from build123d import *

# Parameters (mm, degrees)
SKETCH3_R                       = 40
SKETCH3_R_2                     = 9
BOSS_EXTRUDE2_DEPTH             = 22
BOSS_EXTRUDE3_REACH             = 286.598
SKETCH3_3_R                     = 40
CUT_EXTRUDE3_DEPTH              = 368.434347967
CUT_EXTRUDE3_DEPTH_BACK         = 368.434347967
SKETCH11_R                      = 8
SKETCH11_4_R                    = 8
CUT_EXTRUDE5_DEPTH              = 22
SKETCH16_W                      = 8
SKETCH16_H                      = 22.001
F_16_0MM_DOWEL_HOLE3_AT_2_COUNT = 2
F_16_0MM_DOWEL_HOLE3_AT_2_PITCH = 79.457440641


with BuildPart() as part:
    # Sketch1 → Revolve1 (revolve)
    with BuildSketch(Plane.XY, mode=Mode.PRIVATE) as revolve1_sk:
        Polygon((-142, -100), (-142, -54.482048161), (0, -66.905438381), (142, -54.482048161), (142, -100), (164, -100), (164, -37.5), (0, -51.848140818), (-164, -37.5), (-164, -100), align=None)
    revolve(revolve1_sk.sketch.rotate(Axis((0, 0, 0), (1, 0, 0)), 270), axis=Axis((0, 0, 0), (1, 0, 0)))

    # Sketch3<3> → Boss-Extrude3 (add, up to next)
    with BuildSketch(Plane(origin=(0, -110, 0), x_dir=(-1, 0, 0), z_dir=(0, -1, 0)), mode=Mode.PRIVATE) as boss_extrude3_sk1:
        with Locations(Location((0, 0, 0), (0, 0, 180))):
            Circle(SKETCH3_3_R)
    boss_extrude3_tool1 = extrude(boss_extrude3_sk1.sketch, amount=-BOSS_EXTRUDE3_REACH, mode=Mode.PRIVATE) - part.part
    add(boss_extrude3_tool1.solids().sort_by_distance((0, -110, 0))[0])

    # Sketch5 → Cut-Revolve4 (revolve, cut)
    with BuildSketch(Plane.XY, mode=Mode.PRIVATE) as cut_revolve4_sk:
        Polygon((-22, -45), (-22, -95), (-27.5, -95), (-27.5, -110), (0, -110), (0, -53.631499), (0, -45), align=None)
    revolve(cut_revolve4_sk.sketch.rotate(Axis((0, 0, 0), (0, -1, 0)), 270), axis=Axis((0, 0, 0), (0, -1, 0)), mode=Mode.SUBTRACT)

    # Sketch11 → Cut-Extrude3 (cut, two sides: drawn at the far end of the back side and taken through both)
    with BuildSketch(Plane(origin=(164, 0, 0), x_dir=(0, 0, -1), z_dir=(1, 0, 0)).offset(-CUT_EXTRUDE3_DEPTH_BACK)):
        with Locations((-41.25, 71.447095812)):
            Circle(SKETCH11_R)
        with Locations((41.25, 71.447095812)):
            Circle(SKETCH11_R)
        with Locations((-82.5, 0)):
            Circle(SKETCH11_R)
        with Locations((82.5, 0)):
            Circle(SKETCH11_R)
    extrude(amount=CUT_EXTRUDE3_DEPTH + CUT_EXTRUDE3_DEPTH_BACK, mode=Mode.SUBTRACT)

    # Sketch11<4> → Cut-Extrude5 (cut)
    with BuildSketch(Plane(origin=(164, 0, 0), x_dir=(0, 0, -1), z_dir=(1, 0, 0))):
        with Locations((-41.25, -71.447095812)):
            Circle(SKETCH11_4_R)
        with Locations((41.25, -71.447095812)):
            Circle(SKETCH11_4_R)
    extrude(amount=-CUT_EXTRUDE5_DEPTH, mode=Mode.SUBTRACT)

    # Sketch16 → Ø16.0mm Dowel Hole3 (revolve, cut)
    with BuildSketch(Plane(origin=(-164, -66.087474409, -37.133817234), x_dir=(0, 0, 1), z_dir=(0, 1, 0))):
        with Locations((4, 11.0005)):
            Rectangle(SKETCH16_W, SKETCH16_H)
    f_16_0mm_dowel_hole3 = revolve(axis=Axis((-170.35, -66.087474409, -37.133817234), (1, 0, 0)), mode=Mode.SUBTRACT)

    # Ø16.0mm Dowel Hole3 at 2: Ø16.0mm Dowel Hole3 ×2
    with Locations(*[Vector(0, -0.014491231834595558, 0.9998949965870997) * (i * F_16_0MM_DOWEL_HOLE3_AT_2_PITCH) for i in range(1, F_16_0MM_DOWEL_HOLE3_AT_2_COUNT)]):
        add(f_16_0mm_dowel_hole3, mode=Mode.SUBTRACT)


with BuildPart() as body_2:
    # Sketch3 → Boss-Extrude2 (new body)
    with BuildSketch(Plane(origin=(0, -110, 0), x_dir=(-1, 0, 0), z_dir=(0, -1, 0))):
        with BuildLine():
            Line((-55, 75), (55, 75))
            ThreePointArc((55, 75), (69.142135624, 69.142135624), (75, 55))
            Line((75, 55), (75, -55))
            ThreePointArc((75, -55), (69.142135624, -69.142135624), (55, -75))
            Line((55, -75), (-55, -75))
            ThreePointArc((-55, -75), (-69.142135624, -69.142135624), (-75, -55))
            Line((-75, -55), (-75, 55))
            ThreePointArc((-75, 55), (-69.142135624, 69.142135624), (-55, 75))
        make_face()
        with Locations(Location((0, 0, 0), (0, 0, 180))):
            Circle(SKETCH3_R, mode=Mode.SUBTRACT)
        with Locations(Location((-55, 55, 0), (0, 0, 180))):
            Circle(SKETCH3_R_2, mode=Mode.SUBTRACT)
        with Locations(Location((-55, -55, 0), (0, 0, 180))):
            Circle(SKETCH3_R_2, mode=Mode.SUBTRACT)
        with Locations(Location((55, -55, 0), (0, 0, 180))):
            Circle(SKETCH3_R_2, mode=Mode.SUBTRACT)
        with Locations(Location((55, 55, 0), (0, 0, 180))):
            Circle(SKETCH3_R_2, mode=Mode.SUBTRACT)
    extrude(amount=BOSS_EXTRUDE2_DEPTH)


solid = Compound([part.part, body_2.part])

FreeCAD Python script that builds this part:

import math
import FreeCAD as App
import Part
import Sketcher
from FreeCAD import Vector
Q = App.Units.Quantity


def add_polygon(sketch, points):
    """Adds a closed chain of lines whose ends are joined by coincident constraints."""
    first, n = sketch.GeometryCount, len(points)
    for a, b in zip(points, points[1:] + points[:1]):
        sketch.addGeometry(Part.LineSegment(App.Vector(*a, 0), App.Vector(*b, 0)), False)
    for i in range(n):
        sketch.addConstraint(Sketcher.Constraint("Coincident", first + i, 2, first + (i + 1) % n, 1))

doc = App.newDocument("Part")
body = doc.addObject("PartDesign::Body", "Body")

sketch1 = body.newObject("Sketcher::SketchObject", "Sketch")
sketch1.AttachmentSupport = (doc.getObject("XY_Plane"), [""])
sketch1.MapMode = "FlatFace"
add_polygon(sketch1, [(-142, -100), (-142, -54), (0, -67), (142, -54), (142, -100), (164, -100), (164, -38), (0, -52), (-164, -38), (-164, -100)])
sketch1.addConstraint(Sketcher.Constraint("Vertical", 0))
sketch1.addConstraint(Sketcher.Constraint("Vertical", 3))
sketch1.addConstraint(Sketcher.Constraint("Horizontal", 4))
sketch1.addConstraint(Sketcher.Constraint("Vertical", 5))
sketch1.addConstraint(Sketcher.Constraint("Vertical", 8))
sketch1.addConstraint(Sketcher.Constraint("Horizontal", 9))
sketch1.addConstraint(Sketcher.Constraint("Symmetric", 0, 2, 2, 2, -2))
sketch1.addConstraint(Sketcher.Constraint("Symmetric", 5, 2, 7, 2, -2))
sketch1.addConstraint(Sketcher.Constraint("PointOnObject", 1, 2, -2))
sketch1.addConstraint(Sketcher.Constraint("PointOnObject", 6, 2, -2))
sketch1.addConstraint(Sketcher.Constraint("Parallel", 2, 6))
sketch1.addConstraint(Sketcher.Constraint("Horizontal", 4, 2, 8, 2))
sketch1.addConstraint(Sketcher.Constraint("DistanceX", 4, 1, 4, 2, Q("22 mm")))
sketch1.addConstraint(Sketcher.Constraint("Angle", 1, Q("-5 deg")))
sketch1.addConstraint(Sketcher.Constraint("DistanceY", 5, 1, 5, 2, Q("62.5 mm")))
sketch1.addConstraint(Sketcher.Constraint("DistanceX", 0, 2, -1, 1, Q("142 mm")))
sketch1.addConstraint(Sketcher.Constraint("DistanceY", 3, 2, -1, 1, Q("100 mm")))
sketch1.addConstraint(Sketcher.Constraint("DistanceY", 0, 1, 0, 2, Q("45.517952 mm")))
revolution = body.newObject("PartDesign::Revolution", "Revolution")
revolution.Profile = sketch1
revolution.ReferenceAxis = (sketch1, ["H_Axis"])
revolution.Angle = 360

sketch2 = body.newObject("Sketcher::SketchObject", "Sketch001")
sketch2.AttachmentSupport = (doc.getObject("XZ_Plane"), [""])
sketch2.MapMode = "FlatFace"
sketch2.AttachmentOffset = App.Placement(Vector(0, 0, 110), App.Rotation())
sketch2.addGeometry(Part.Circle(Vector(0, 0, 0), Vector(0, 0, 1), 40), False)
sketch2.addConstraint(Sketcher.Constraint("Coincident", 0, 3, -1, 1))
sketch2.addConstraint(Sketcher.Constraint("Diameter", 0, Q("80 mm")))
pad1 = body.newObject("PartDesign::Pad", "Pad")
pad1.Profile = sketch2
pad1.Type = "UpToFirst"
pad1.Reversed = True

sketch3 = body.newObject("Sketcher::SketchObject", "Sketch002")
sketch3.AttachmentSupport = (doc.getObject("XY_Plane"), [""])
sketch3.MapMode = "FlatFace"
add_polygon(sketch3, [(-22, -45), (-22, -95), (-28, -95), (-28, -110), (0, -110), (0, -45)])
sketch3.addConstraint(Sketcher.Constraint("Vertical", 0))
sketch3.addConstraint(Sketcher.Constraint("Horizontal", 1))
sketch3.addConstraint(Sketcher.Constraint("Vertical", 2))
sketch3.addConstraint(Sketcher.Constraint("Horizontal", 3))
sketch3.addConstraint(Sketcher.Constraint("Vertical", 4))
sketch3.addConstraint(Sketcher.Constraint("Horizontal", 5))
sketch3.addConstraint(Sketcher.Constraint("PointOnObject", 3, 2, -2))
sketch3.addConstraint(Sketcher.Constraint("DistanceX", 5, 2, 5, 1, Q("22 mm")))
sketch3.addConstraint(Sketcher.Constraint("DistanceY", 0, 2, 0, 1, Q("50 mm")))
sketch3.addConstraint(Sketcher.Constraint("DistanceY", 2, 2, 2, 1, Q("15 mm")))
sketch3.addConstraint(Sketcher.Constraint("DistanceX", 1, 2, 1, 1, Q("5.5 mm")))
sketch3.addConstraint(Sketcher.Constraint("DistanceY", 0, 2, -1, 1, Q("95 mm")))
groove = body.newObject("PartDesign::Groove", "Groove")
groove.Profile = sketch3
groove.ReferenceAxis = (sketch3, ["V_Axis"])
groove.Angle = 360

sketch4 = body.newObject("Sketcher::SketchObject", "Sketch003")
sketch4.AttachmentSupport = (doc.getObject("YZ_Plane"), [""])
sketch4.MapMode = "FlatFace"
sketch4.AttachmentOffset = App.Placement(Vector(0, 0, 164), App.Rotation())
sketch4.addGeometry(Part.Circle(Vector(71, 41, 0), Vector(0, 0, 1), 8), False)
sketch4.addGeometry(Part.Circle(Vector(71, -41, 0), Vector(0, 0, 1), 8), False)
sketch4.addGeometry(Part.Circle(Vector(0, 82, 0), Vector(0, 0, 1), 8), False)
sketch4.addGeometry(Part.Circle(Vector(0, -82, 0), Vector(0, 0, 1), 8), False)
sketch4.addConstraint(Sketcher.Constraint("Equal", 0, 1))
sketch4.addConstraint(Sketcher.Constraint("Equal", 1, 2))
sketch4.addConstraint(Sketcher.Constraint("Equal", 2, 3))
sketch4.addConstraint(Sketcher.Constraint("Symmetric", 2, 3, 3, 3, -1, 1))
sketch4.addConstraint(Sketcher.Constraint("Symmetric", 0, 3, 1, 3, -1))
sketch4.addConstraint(Sketcher.Constraint("PointOnObject", 2, 3, -2))
sketch4.addConstraint(Sketcher.Constraint("Diameter", 0, Q("16 mm")))
sketch4.addConstraint(Sketcher.Constraint("DistanceY", 3, 3, 2, 3, Q("165 mm")))
sketch4.addConstraint(Sketcher.Constraint("DistanceY", 1, 3, 0, 3, Q("82.5 mm")))
sketch4.addConstraint(Sketcher.Constraint("DistanceX", -1, 1, 0, 3, Q("71.447096 mm")))
pocket1 = body.newObject("PartDesign::Pocket", "Pocket")
pocket1.Profile = sketch4
pocket1.Type = "ThroughAll"
pocket1.Midplane = True

sketch5 = body.newObject("Sketcher::SketchObject", "Sketch004")
sketch5.AttachmentSupport = (doc.getObject("YZ_Plane"), [""])
sketch5.MapMode = "FlatFace"
sketch5.AttachmentOffset = App.Placement(Vector(0, 0, 164), App.Rotation())
sketch5.addGeometry(Part.Circle(Vector(-71, 41, 0), Vector(0, 0, 1), 8), False)
sketch5.addGeometry(Part.Circle(Vector(-71, -41, 0), Vector(0, 0, 1), 8), False)
sketch5.addConstraint(Sketcher.Constraint("Equal", 0, 1))
sketch5.addConstraint(Sketcher.Constraint("Symmetric", 0, 3, 1, 3, -1))
sketch5.addConstraint(Sketcher.Constraint("Diameter", 0, Q("16 mm")))
sketch5.addConstraint(Sketcher.Constraint("DistanceY", 1, 3, 0, 3, Q("82.5 mm")))
sketch5.addConstraint(Sketcher.Constraint("DistanceX", 0, 3, -1, 1, Q("71.447096 mm")))
pocket2 = body.newObject("PartDesign::Pocket", "Pocket001")
pocket2.Profile = sketch5
pocket2.Length = 22

sketch6 = body.newObject("Sketcher::SketchObject", "Sketch005")
sketch6.AttachmentSupport = (doc.getObject("XZ_Plane"), [""])
sketch6.MapMode = "FlatFace"
sketch6.AttachmentOffset = App.Placement(Vector(0, 0, 66.087474), App.Rotation())
add_polygon(sketch6, [(-142, -37), (-164, -37), (-164, -29), (-142, -29)])
sketch6.addGeometry(Part.LineSegment(Vector(-164, -37, 0), Vector(-142, -37, 0)), True)
sketch6.addConstraint(Sketcher.Constraint("Horizontal", 0))
sketch6.addConstraint(Sketcher.Constraint("Vertical", 1))
sketch6.addConstraint(Sketcher.Constraint("Horizontal", 2))
sketch6.addConstraint(Sketcher.Constraint("Vertical", 3))
sketch6.addConstraint(Sketcher.Constraint("Horizontal", 4))
sketch6.addConstraint(Sketcher.Constraint("Coincident", 4, 1, 0, 2))
sketch6.addConstraint(Sketcher.Constraint("Vertical", 2, 2, 4, 2))
sketch6.addConstraint(Sketcher.Constraint("DistanceY", 1, 1, 1, 2, Q("8 mm")))
sketch6.addConstraint(Sketcher.Constraint("DistanceX", 0, 2, -1, 1, Q("164 mm")))
sketch6.addConstraint(Sketcher.Constraint("DistanceX", 0, 2, 0, 1, Q("22.001 mm")))
sketch6.addConstraint(Sketcher.Constraint("DistanceY", 0, 2, -1, 1, Q("37.133817 mm")))
groove2 = body.newObject("PartDesign::Groove", "Groove001")
groove2.Profile = sketch6
groove2.ReferenceAxis = (sketch6, ["Axis0"])
groove2.Angle = 360
doc.recompute()

datumline = body.newObject("PartDesign::Line", "DatumLine")
datumline.Placement = App.Placement(Vector(0, 0, 0), App.Rotation(Vector(0, 0, 1), Vector(0, -0.014491232, 0.999894997)))
linearpattern = body.newObject("PartDesign::LinearPattern", "LinearPattern")
linearpattern.Originals = [groove2]
linearpattern.Direction = (datumline, [""])
linearpattern.Mode = "offset"
linearpattern.Offset = 79.457441
linearpattern.Occurrences = 2
body.Tip = linearpattern
body2 = doc.addObject("PartDesign::Body", "Body001")

sketch7 = body2.newObject("Sketcher::SketchObject", "Sketch006")
sketch7.AttachmentSupport = (doc.getObject("XZ_Plane001"), [""])
sketch7.MapMode = "FlatFace"
sketch7.AttachmentOffset = App.Placement(Vector(0, 0, 110), App.Rotation())
sketch7.addGeometry(Part.LineSegment(Vector(-55, -75, 0), Vector(55, -75, 0)), False)
sketch7.addGeometry(Part.ArcOfCircle(Part.Circle(Vector(55, -55, 0), Vector(0, 0, 1), 20), math.radians(-90), math.radians(0)), False)
sketch7.addGeometry(Part.LineSegment(Vector(75, -55, 0), Vector(75, 55, 0)), False)
sketch7.addGeometry(Part.ArcOfCircle(Part.Circle(Vector(55, 55, 0), Vector(0, 0, 1), 20), math.radians(0), math.radians(90)), False)
sketch7.addGeometry(Part.LineSegment(Vector(55, 75, 0), Vector(-55, 75, 0)), False)
sketch7.addGeometry(Part.ArcOfCircle(Part.Circle(Vector(-55, 55, 0), Vector(0, 0, 1), 20), math.radians(90), math.radians(180)), False)
sketch7.addGeometry(Part.LineSegment(Vector(-75, 55, 0), Vector(-75, -55, 0)), False)
sketch7.addGeometry(Part.ArcOfCircle(Part.Circle(Vector(-55, -55, 0), Vector(0, 0, 1), 20), math.radians(180), math.radians(270)), False)
sketch7.addGeometry(Part.Circle(Vector(-55, 55, 0), Vector(0, 0, 1), 9), False)
sketch7.addGeometry(Part.Circle(Vector(55, 55, 0), Vector(0, 0, 1), 9), False)
sketch7.addGeometry(Part.Circle(Vector(0, 0, 0), Vector(0, 0, 1), 40), False)
sketch7.addGeometry(Part.Circle(Vector(-55, -55, 0), Vector(0, 0, 1), 9), False)
sketch7.addGeometry(Part.Circle(Vector(55, -55, 0), Vector(0, 0, 1), 9), False)
sketch7.addConstraint(Sketcher.Constraint("Tangent", 0, 2, 1, 1))
sketch7.addConstraint(Sketcher.Constraint("Tangent", 1, 2, 2, 1))
sketch7.addConstraint(Sketcher.Constraint("Tangent", 2, 2, 3, 1))
sketch7.addConstraint(Sketcher.Constraint("Tangent", 3, 2, 4, 1))
sketch7.addConstraint(Sketcher.Constraint("Tangent", 4, 2, 5, 1))
sketch7.addConstraint(Sketcher.Constraint("Tangent", 5, 2, 6, 1))
sketch7.addConstraint(Sketcher.Constraint("Tangent", 6, 2, 7, 1))
sketch7.addConstraint(Sketcher.Constraint("Tangent", 7, 2, 0, 1))
sketch7.addConstraint(Sketcher.Constraint("Horizontal", 0))
sketch7.addConstraint(Sketcher.Constraint("Vertical", 2))
sketch7.addConstraint(Sketcher.Constraint("Horizontal", 4))
sketch7.addConstraint(Sketcher.Constraint("Vertical", 6))
sketch7.addConstraint(Sketcher.Constraint("Coincident", 10, 3, -1, 1))
sketch7.addConstraint(Sketcher.Constraint("Coincident", 8, 3, 5, 3))
sketch7.addConstraint(Sketcher.Constraint("Coincident", 9, 3, 3, 3))
sketch7.addConstraint(Sketcher.Constraint("Coincident", 11, 3, 7, 3))
sketch7.addConstraint(Sketcher.Constraint("Coincident", 12, 3, 1, 3))
sketch7.addConstraint(Sketcher.Constraint("Equal", 1, 3))
sketch7.addConstraint(Sketcher.Constraint("Equal", 3, 5))
sketch7.addConstraint(Sketcher.Constraint("Equal", 5, 7))
sketch7.addConstraint(Sketcher.Constraint("Equal", 8, 9))
sketch7.addConstraint(Sketcher.Constraint("Equal", 9, 11))
sketch7.addConstraint(Sketcher.Constraint("Equal", 11, 12))
sketch7.addConstraint(Sketcher.Constraint("Symmetric", 1, 3, 5, 3, -1, 1))
sketch7.addConstraint(Sketcher.Constraint("Equal", 4, 2))
sketch7.addConstraint(Sketcher.Constraint("Diameter", 8, Q("18 mm")))
sketch7.addConstraint(Sketcher.Constraint("Diameter", 10, Q("80 mm")))
sketch7.addConstraint(Sketcher.Constraint("Radius", 1, Q("20 mm")))
sketch7.addConstraint(Sketcher.Constraint("DistanceX", 0, 1, 0, 2, Q("110 mm")))
pad2 = body2.newObject("PartDesign::Pad", "Pad001")
pad2.Profile = sketch7
pad2.Length = 22

doc.recompute()
